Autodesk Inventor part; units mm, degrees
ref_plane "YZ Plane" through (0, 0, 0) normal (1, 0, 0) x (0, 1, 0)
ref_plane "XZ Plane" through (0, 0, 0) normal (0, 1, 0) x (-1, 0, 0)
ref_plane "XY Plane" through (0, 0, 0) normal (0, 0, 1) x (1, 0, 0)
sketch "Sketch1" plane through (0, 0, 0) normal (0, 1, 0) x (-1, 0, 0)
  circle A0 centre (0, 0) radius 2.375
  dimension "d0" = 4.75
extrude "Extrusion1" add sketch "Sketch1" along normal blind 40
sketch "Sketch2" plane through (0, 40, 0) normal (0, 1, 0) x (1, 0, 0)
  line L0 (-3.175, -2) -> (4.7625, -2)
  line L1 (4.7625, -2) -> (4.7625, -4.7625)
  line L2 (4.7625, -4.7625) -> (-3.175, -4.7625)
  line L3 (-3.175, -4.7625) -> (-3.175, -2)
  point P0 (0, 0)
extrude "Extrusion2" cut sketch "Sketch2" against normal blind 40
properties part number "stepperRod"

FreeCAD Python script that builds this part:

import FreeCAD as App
import Part
import Sketcher
from FreeCAD import Vector
Q = App.Units.Quantity

doc = App.newDocument("Part")
params = doc.addObject("Spreadsheet::Sheet", "Params")
for row, (alias, value) in enumerate([
    ("sketch1_diameter", "0.187 in"),
    ("pad1_length", "1.5748031 in"),
    ("sketch2_width", "0.3125 in"),
    ("pocket1_length", "1.5748031 in"),
], start=1):
    params.set(f"A{row}", alias)
    params.set(f"B{row}", "=" + value)
    params.setAlias(f"B{row}", alias)

body = doc.addObject("PartDesign::Body", "Body")

# Sketch on XZ plane
sketch1 = body.newObject("Sketcher::SketchObject", "Sketch")
sketch1.AttachmentSupport = (doc.getObject("XZ_Plane"), [""])
sketch1.MapMode = "FlatFace"
sketch1.addGeometry(Part.Circle(Vector(0, 0, 0), Vector(0, 0, 1), 2.4), False)
sketch1.addConstraint([
    Sketcher.Constraint("Coincident", 0, 3, -1, 1),
    Sketcher.Constraint("Diameter", 0, Q("0.187 in")),
])
sketch1.setExpression("Constraints[1]", "Params.sketch1_diameter")
pad1 = body.newObject("PartDesign::Pad", "Pad")
pad1.Profile = sketch1
pad1.setExpression("Length", "Params.pad1_length")
pad1.Reversed = True

# Sketch on XZ plane
sketch2 = body.newObject("Sketcher::SketchObject", "Sketch001")
sketch2.AttachmentSupport = (doc.getObject("XZ_Plane"), [""])
sketch2.MapMode = "FlatFace"
sketch2.AttachmentOffset = App.Placement(Vector(0, 0, -1.5748031 * 25.4), App.Rotation())
sketch2.addGeometry([
    Part.LineSegment(Vector(4.8, 2, 0), Vector(-3.2, 2, 0)),
    Part.LineSegment(Vector(-3.2, 2, 0), Vector(-3.2, 4.8, 0)),
    Part.LineSegment(Vector(-3.2, 4.8, 0), Vector(4.8, 4.8, 0)),
    Part.LineSegment(Vector(4.8, 4.8, 0), Vector(4.8, 2, 0)),
], False)
sketch2.addConstraint([
    Sketcher.Constraint("Coincident", 0, 2, 1, 1),
    Sketcher.Constraint("Coincident", 1, 2, 2, 1),
    Sketcher.Constraint("Coincident", 2, 2, 3, 1),
    Sketcher.Constraint("Coincident", 3, 2, 0, 1),
    Sketcher.Constraint("Horizontal", 0),
    Sketcher.Constraint("Vertical", 1),
    Sketcher.Constraint("Horizontal", 2),
    Sketcher.Constraint("Vertical", 3),
    Sketcher.Constraint("DistanceX", 0, 2, 0, 1, Q("0.3125 in")),
    Sketcher.Constraint("DistanceX", 0, 2, -1, 1, Q("0.125 in")),
    Sketcher.Constraint("DistanceY", -1, 1, 1, 2, Q("0.1875 in")),
    Sketcher.Constraint("DistanceY", 1, 1, 1, 2, Q("2.7625 mm")),
])
sketch2.setExpression("Constraints[8]", "Params.sketch2_width")
pocket1 = body.newObject("PartDesign::Pocket", "Pocket")
pocket1.Profile = sketch2
pocket1.setExpression("Length", "Params.pocket1_length")
pocket1.Reversed = True

doc.recompute()
